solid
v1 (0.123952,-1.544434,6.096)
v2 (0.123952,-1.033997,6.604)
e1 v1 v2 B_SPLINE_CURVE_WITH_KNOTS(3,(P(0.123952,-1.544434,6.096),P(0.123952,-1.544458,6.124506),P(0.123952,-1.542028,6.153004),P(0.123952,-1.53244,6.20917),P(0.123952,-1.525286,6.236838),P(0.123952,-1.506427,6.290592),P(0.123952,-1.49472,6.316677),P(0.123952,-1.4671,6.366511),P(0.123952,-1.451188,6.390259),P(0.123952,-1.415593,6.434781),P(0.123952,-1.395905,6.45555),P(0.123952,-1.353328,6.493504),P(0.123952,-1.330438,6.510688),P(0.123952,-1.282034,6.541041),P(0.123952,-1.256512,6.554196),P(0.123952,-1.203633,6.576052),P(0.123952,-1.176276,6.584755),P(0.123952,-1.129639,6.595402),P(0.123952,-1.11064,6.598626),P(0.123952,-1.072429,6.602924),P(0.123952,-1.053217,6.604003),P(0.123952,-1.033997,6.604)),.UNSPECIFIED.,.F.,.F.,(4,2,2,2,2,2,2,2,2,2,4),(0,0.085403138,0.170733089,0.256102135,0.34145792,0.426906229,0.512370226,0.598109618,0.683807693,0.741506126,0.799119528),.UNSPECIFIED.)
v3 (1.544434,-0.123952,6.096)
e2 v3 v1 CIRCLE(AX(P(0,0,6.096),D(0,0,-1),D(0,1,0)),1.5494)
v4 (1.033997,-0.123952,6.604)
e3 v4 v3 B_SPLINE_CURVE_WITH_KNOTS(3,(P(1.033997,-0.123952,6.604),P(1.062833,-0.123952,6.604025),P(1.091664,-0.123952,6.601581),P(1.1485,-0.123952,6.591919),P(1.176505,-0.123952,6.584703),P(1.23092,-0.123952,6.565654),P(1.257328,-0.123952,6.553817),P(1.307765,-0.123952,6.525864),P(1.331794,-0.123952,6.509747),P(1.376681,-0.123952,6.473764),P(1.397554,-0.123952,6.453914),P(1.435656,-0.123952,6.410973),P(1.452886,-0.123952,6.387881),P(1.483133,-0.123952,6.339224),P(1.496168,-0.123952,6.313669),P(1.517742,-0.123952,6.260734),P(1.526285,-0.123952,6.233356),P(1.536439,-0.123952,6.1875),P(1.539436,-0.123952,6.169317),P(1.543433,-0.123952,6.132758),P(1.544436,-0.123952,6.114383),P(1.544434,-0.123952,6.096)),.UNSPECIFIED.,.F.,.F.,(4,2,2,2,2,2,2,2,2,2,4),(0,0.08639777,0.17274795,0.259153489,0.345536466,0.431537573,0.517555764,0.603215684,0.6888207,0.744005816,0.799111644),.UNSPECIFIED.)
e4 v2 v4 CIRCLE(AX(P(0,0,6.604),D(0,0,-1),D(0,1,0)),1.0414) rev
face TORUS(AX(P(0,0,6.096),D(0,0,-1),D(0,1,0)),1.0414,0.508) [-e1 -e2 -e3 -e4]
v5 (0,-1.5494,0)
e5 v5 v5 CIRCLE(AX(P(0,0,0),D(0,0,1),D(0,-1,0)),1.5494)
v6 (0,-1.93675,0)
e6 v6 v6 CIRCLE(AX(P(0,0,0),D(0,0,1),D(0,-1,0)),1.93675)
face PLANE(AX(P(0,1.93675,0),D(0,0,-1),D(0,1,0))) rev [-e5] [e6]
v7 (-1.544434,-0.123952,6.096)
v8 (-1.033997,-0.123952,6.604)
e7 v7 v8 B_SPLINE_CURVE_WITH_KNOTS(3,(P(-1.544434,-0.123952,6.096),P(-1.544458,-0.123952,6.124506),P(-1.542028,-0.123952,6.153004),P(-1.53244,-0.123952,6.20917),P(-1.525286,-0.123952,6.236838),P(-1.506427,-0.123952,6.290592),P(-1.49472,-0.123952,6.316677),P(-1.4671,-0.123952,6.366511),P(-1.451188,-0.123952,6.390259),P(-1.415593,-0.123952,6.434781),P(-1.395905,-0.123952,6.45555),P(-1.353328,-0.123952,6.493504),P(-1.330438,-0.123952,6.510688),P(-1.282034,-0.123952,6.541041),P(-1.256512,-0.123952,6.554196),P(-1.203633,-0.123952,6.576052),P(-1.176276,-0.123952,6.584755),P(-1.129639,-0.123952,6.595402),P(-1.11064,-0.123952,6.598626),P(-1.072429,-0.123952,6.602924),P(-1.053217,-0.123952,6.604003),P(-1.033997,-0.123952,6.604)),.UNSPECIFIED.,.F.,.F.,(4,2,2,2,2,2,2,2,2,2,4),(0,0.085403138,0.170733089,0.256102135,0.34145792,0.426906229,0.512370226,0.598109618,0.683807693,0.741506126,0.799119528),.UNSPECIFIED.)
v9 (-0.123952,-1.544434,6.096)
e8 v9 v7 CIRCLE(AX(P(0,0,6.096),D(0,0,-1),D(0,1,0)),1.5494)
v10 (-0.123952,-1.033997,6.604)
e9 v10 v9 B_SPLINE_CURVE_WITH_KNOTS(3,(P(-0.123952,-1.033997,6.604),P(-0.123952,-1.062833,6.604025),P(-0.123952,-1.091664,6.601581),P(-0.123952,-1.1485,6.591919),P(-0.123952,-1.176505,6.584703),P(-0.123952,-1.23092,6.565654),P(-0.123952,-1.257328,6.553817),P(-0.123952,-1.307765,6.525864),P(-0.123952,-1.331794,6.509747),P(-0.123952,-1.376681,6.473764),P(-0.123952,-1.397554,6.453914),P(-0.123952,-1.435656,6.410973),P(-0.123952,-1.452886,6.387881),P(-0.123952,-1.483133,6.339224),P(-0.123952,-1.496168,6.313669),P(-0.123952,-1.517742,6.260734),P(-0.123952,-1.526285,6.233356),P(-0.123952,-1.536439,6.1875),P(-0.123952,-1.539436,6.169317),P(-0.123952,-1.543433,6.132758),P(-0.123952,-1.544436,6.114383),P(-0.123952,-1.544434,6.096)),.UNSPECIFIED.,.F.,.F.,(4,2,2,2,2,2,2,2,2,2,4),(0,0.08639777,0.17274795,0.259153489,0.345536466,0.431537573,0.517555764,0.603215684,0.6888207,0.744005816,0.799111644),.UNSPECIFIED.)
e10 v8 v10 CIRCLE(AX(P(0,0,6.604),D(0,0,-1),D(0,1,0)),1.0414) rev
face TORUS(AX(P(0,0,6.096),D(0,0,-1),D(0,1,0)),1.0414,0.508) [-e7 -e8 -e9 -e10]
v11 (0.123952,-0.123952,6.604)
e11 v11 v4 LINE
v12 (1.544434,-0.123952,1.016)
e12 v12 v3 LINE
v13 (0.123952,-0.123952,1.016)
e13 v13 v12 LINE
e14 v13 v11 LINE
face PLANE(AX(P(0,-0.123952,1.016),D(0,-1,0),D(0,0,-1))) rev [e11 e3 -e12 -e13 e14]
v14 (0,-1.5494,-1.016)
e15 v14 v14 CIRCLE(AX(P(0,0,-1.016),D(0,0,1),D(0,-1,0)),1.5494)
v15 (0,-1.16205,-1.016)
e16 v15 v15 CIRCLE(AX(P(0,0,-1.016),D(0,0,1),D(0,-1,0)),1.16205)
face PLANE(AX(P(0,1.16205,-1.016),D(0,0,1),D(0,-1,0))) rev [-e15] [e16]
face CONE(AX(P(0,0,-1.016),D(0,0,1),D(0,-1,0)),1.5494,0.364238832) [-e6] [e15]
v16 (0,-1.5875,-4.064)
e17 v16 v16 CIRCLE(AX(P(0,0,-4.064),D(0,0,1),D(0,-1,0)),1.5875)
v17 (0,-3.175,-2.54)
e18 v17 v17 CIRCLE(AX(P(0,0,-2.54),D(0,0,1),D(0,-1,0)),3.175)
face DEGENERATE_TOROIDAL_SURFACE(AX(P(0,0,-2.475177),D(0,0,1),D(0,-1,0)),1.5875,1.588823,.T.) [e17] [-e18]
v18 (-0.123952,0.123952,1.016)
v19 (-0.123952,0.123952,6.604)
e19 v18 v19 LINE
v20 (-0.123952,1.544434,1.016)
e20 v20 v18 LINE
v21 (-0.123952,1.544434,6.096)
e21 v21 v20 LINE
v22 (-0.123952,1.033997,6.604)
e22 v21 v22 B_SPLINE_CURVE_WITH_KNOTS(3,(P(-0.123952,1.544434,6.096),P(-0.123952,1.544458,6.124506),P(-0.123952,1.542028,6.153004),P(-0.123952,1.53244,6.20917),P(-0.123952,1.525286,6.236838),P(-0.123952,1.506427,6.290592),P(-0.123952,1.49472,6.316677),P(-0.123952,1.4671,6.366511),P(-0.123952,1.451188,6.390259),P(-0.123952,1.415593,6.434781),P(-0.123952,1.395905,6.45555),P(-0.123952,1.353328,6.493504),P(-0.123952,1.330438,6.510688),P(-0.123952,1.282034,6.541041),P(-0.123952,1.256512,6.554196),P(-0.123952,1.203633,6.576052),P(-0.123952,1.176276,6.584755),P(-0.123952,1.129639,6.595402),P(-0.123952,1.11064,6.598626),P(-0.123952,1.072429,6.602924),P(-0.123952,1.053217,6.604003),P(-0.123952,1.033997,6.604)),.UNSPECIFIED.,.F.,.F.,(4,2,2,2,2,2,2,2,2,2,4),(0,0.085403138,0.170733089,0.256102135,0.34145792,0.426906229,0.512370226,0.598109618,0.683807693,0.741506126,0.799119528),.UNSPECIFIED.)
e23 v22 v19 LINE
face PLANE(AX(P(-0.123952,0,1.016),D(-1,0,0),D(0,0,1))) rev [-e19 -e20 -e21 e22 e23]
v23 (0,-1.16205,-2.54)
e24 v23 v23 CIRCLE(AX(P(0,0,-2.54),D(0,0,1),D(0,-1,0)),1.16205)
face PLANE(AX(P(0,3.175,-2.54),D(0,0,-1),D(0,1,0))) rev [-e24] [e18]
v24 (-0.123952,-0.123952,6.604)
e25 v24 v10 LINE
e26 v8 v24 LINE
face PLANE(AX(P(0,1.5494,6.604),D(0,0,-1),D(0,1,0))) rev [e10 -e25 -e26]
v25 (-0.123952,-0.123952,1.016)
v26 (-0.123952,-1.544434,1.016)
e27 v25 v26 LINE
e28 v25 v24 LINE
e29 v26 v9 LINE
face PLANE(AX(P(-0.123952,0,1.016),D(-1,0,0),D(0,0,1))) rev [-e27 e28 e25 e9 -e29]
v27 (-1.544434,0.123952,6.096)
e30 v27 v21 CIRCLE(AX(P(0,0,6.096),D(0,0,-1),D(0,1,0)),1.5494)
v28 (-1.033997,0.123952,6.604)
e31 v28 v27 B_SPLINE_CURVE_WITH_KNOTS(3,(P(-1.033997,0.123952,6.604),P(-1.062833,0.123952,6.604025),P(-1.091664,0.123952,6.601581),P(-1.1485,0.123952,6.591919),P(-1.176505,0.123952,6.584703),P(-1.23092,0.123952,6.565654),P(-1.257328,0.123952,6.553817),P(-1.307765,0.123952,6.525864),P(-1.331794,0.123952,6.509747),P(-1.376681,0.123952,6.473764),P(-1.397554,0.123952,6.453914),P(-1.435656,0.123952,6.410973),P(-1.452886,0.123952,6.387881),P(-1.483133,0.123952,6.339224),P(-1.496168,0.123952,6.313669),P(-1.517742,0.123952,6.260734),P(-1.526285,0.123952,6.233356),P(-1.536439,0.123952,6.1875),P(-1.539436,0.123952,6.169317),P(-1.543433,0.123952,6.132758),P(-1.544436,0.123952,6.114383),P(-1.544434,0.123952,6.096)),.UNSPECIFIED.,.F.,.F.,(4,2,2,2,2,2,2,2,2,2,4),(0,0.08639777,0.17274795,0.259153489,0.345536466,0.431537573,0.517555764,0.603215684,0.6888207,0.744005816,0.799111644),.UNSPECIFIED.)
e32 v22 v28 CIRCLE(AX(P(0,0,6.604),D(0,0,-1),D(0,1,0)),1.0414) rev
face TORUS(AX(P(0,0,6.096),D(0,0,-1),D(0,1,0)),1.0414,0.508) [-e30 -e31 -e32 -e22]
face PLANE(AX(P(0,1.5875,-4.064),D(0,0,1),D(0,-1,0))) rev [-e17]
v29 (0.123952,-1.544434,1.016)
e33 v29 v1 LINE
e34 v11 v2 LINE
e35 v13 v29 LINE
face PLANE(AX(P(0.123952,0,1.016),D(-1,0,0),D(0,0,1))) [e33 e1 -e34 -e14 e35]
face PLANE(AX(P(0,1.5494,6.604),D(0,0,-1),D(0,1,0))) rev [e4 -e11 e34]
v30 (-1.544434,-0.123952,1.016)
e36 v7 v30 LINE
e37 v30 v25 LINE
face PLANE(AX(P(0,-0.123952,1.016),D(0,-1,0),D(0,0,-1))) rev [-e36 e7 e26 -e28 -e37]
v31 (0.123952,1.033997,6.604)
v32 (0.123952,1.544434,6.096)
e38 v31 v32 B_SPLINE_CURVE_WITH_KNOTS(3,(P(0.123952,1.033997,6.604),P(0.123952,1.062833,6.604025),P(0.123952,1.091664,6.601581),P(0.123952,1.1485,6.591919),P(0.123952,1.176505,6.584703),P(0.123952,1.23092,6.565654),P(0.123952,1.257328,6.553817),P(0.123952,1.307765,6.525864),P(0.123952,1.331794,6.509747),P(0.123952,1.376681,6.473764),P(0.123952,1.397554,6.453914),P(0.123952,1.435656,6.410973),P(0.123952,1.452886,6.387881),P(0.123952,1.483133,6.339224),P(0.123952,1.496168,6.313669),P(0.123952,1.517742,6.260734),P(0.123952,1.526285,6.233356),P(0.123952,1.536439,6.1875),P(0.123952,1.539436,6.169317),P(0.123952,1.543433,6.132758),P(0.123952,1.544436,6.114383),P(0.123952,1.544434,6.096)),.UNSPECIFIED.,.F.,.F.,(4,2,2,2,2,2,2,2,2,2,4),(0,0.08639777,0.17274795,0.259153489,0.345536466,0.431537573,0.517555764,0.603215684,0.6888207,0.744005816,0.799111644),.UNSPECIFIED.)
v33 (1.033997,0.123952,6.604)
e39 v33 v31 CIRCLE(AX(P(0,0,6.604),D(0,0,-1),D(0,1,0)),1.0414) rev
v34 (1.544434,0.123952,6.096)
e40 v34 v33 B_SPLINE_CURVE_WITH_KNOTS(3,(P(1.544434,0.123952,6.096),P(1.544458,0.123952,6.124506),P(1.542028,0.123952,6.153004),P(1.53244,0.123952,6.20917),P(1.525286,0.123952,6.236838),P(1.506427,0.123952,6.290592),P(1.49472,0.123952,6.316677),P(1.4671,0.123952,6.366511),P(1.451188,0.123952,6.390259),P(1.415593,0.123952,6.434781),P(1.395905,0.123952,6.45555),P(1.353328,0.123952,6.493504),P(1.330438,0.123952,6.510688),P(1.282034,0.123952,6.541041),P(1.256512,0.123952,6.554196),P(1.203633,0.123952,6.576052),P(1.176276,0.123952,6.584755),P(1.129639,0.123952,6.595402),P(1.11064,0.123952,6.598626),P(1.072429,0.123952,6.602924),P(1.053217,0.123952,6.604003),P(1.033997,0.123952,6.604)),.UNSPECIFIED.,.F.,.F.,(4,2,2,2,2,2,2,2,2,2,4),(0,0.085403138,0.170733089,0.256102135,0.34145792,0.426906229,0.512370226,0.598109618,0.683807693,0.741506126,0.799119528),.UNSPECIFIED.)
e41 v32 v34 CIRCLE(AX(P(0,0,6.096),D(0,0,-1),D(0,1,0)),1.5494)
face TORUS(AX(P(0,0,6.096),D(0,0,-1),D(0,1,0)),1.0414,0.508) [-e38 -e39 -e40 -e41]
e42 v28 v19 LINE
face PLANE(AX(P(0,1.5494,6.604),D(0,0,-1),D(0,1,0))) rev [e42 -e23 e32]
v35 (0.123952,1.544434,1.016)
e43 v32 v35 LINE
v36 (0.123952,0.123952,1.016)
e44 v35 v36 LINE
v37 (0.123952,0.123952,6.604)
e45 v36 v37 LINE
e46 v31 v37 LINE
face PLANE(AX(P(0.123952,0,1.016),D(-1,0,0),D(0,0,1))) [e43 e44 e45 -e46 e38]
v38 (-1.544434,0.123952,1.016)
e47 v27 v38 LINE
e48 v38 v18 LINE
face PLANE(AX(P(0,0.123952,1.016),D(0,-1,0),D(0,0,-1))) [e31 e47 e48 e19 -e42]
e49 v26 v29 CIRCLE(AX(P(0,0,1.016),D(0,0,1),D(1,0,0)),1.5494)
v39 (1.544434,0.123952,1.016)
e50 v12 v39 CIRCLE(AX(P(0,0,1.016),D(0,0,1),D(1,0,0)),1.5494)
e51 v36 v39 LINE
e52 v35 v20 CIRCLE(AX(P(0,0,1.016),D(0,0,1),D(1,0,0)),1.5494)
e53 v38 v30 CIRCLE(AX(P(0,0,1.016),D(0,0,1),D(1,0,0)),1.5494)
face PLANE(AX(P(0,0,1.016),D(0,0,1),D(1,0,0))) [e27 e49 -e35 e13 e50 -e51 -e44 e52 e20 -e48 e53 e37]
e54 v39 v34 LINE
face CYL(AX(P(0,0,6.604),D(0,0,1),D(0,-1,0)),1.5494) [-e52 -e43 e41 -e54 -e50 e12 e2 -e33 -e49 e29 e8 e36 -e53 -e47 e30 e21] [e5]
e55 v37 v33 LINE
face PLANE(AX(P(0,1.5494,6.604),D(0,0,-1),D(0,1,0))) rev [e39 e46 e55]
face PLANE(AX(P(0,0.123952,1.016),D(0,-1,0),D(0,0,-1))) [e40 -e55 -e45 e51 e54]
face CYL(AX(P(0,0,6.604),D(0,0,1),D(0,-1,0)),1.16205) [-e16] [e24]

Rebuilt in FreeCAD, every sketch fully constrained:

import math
import FreeCAD as App
import Part
import Sketcher
Q = App.Units.Quantity


def edges_at(feature, points):
    """Names of the edges that pass closest to the given points."""
    edges = feature.Shape.Edges
    near = lambda p: min(range(len(edges)), key=lambda i: edges[i].distToShape(Part.Vertex(*p))[0])
    return sorted({f"Edge{near(p) + 1}" for p in points})


def add_polygon(sketch, points):
    """Adds a closed chain of lines whose ends are joined by coincident constraints."""
    first, n = sketch.GeometryCount, len(points)
    for a, b in zip(points, points[1:] + points[:1]):
        sketch.addGeometry(Part.LineSegment(App.Vector(*a, 0), App.Vector(*b, 0)), False)
    for i in range(n):
        sketch.addConstraint(Sketcher.Constraint("Coincident", first + i, 2, first + (i + 1) % n, 1))

doc = App.newDocument("Part")
body = doc.addObject("PartDesign::Body", "Body")

sketch1 = body.newObject("Sketcher::SketchObject", "Sketch")
sketch1.AttachmentSupport = (doc.getObject("YZ_Plane"), [""])
sketch1.MapMode = "FlatFace"
sketch1.addGeometry([
    Part.LineSegment(App.Vector(3.175, -2.54, 0), App.Vector(1.16205, -2.54, 0)),
    Part.LineSegment(App.Vector(1.16205, -2.54, 0), App.Vector(1.16205, -1.016, 0)),
    Part.LineSegment(App.Vector(1.16205, -1.016, 0), App.Vector(1.5494, -1.016, 0)),
    Part.LineSegment(App.Vector(1.5494, -1.016, 0), App.Vector(1.93675, 0, 0)),
    Part.LineSegment(App.Vector(1.93675, 0, 0), App.Vector(1.5494, 0, 0)),
    Part.LineSegment(App.Vector(1.5494, 0, 0), App.Vector(1.5494, 6.604, 0)),
    Part.LineSegment(App.Vector(1.5494, 6.604, 0), App.Vector(0, 6.604, 0)),
    Part.LineSegment(App.Vector(0, 6.604, 0), App.Vector(0, -4.064, 0)),
    Part.LineSegment(App.Vector(0, -4.064, 0), App.Vector(1.5875, -4.064, 0)),
    Part.ArcOfCircle(Part.Circle(App.Vector(1.5875, -2.475177, 0), App.Vector(0, 0, 1), 1.588823), math.radians(-90), math.radians(-2.338279)),
], False)
sketch1.addConstraint([
    Sketcher.Constraint("Coincident", 0, 2, 1, 1),
    Sketcher.Constraint("Coincident", 1, 2, 2, 1),
    Sketcher.Constraint("Coincident", 2, 2, 3, 1),
    Sketcher.Constraint("Coincident", 3, 2, 4, 1),
    Sketcher.Constraint("Coincident", 4, 2, 5, 1),
    Sketcher.Constraint("Coincident", 5, 2, 6, 1),
    Sketcher.Constraint("Coincident", 6, 2, 7, 1),
    Sketcher.Constraint("Coincident", 7, 2, 8, 1),
    Sketcher.Constraint("Tangent", 8, 2, 9, 1),
    Sketcher.Constraint("Coincident", 9, 2, 0, 1),
    Sketcher.Constraint("Horizontal", 0),
    Sketcher.Constraint("Vertical", 1),
    Sketcher.Constraint("Horizontal", 2),
    Sketcher.Constraint("Horizontal", 4),
    Sketcher.Constraint("Vertical", 5),
    Sketcher.Constraint("Horizontal", 6),
    Sketcher.Constraint("Vertical", 7),
    Sketcher.Constraint("Horizontal", 8),
    Sketcher.Constraint("PointOnObject", 3, 2, -1),
    Sketcher.Constraint("PointOnObject", 6, 2, -2),
    Sketcher.Constraint("Vertical", 2, 2, 4, 2),
    Sketcher.Constraint("Equal", 2, 4),
    Sketcher.Constraint("DistanceY", 1, 1, 1, 2, Q("0.06 in")),
    Sketcher.Constraint("DistanceY", 5, 1, 5, 2, Q("0.26 in")),
    Sketcher.Constraint("DistanceY", 7, 2, 7, 1, Q("0.42 in")),
    Sketcher.Constraint("DistanceY", 0, 2, -1, 1, Q("0.1 in")),
    Sketcher.Constraint("DistanceX", 6, 2, 6, 1, Q("0.061 in")),
    Sketcher.Constraint("DistanceX", 8, 1, 8, 2, Q("0.0625 in")),
    Sketcher.Constraint("DistanceX", -1, 1, 9, 2, Q("0.125 in")),
    Sketcher.Constraint("DistanceX", 1, 2, 3, 2, Q("0.0305 in")),
])
revolution = body.newObject("PartDesign::Revolution", "Revolution")
revolution.Profile = sketch1
revolution.ReferenceAxis = (sketch1, ["V_Axis"])
revolution.Angle = 360

sketch2 = body.newObject("Sketcher::SketchObject", "Sketch001")
sketch2.AttachmentSupport = (doc.getObject("XY_Plane"), [""])
sketch2.MapMode = "FlatFace"
sketch2.AttachmentOffset = App.Placement(App.Vector(0, 0, 0.26 * 25.4), App.Rotation())
add_polygon(sketch2, [(0.123952, 3.17258), (-0.123952, 3.17258), (-0.123952, 0.123952), (-3.17258, 0.123952), (-3.17258, -0.123952), (-0.123952, -0.123952), (-0.123952, -3.17258), (0.123952, -3.17258), (0.123952, -0.123952), (3.17258, -0.123952), (3.17258, 0.123952), (0.123952, 0.123952)])
sketch2.addConstraint([
    Sketcher.Constraint("Horizontal", 0),
    Sketcher.Constraint("Vertical", 1),
    Sketcher.Constraint("Horizontal", 2),
    Sketcher.Constraint("Vertical", 3),
    Sketcher.Constraint("Horizontal", 4),
    Sketcher.Constraint("Vertical", 5),
    Sketcher.Constraint("Horizontal", 6),
    Sketcher.Constraint("Vertical", 7),
    Sketcher.Constraint("Horizontal", 8),
    Sketcher.Constraint("Vertical", 9),
    Sketcher.Constraint("Horizontal", 10),
    Sketcher.Constraint("Vertical", 11),
    Sketcher.Constraint("Symmetric", 0, 2, 6, 2, -1, 1),
    Sketcher.Constraint("Symmetric", 2, 2, 8, 2, -1, 1),
    Sketcher.Constraint("Symmetric", 4, 2, 10, 2, -1, 1),
    Sketcher.Constraint("Symmetric", 4, 2, 7, 2, -2),
    Sketcher.Constraint("Equal", 10, 1),
    Sketcher.Constraint("Equal", 6, 3),
    Sketcher.Constraint("DistanceX", 0, 2, 0, 1, 0.247904),
    Sketcher.Constraint("DistanceX", 2, 2, 2, 1, 3.048628),
])
pocket1 = body.newObject("PartDesign::Pocket", "Pocket")
pocket1.Profile = sketch2
pocket1.Length = Q("0.22 in")
doc.recompute()

fillet = body.newObject("PartDesign::Fillet", "Fillet")
fillet.Base = (pocket1, edges_at(pocket1, [
    (1.096, -1.096, 6.604),
    (1.096, 1.096, 6.604),
    (-1.096, 1.096, 6.604),
    (-1.096, -1.096, 6.604),
]))
fillet.Radius = Q("0.02 in")

doc.recompute()
